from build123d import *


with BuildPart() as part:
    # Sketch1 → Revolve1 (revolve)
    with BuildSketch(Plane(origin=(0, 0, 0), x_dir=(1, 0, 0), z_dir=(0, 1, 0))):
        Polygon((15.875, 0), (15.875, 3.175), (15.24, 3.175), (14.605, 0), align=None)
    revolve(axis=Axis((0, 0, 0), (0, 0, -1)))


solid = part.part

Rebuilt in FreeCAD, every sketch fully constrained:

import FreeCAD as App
import Part
import Sketcher

V = App.Vector
Q = App.Units.Quantity


def add_polygon(sketch, points):
    """Adds a closed chain of lines whose ends are joined by coincident constraints."""
    first, n = sketch.GeometryCount, len(points)
    for a, b in zip(points, points[1:] + points[:1]):
        sketch.addGeometry(Part.LineSegment(App.Vector(*a, 0), App.Vector(*b, 0)), False)
    for i in range(n):
        sketch.addConstraint(Sketcher.Constraint("Coincident", first + i, 2, first + (i + 1) % n, 1))

doc = App.newDocument("Part")
body = doc.addObject("PartDesign::Body", "Body")

sketch1 = doc.addObject("Sketcher::SketchObject", "Sketch")
body.addObject(sketch1)
sketch1.AttachmentSupport = (doc.XZ_Plane, [""])
sketch1.MapMode = "FlatFace"
add_polygon(sketch1, [(15.9, 0), (15.9, -3.2), (15.2, -3.2), (14.6, 0)])
sketch1.addConstraint([
    Sketcher.Constraint("Vertical", 0),
    Sketcher.Constraint("Horizontal", 1),
    Sketcher.Constraint("Horizontal", 3),
    Sketcher.Constraint("PointOnObject", 2, 2, -1),
    Sketcher.Constraint("DistanceX", 3, 1, 3, 2, Q("0.05 in")),
    Sketcher.Constraint("DistanceX", -1, 1, 1, 2, Q("0.6 in")),
    Sketcher.Constraint("DistanceX", 1, 2, 1, 1, Q("0.025 in")),
    Sketcher.Constraint("DistanceY", 0, 2, 0, 1, Q("0.125 in")),
])
revolution = doc.addObject("PartDesign::Revolution", "Revolution")
body.addObject(revolution)
revolution.Profile = sketch1
revolution.ReferenceAxis = (sketch1, ["V_Axis"])
revolution.Angle = 360

doc.recompute()
